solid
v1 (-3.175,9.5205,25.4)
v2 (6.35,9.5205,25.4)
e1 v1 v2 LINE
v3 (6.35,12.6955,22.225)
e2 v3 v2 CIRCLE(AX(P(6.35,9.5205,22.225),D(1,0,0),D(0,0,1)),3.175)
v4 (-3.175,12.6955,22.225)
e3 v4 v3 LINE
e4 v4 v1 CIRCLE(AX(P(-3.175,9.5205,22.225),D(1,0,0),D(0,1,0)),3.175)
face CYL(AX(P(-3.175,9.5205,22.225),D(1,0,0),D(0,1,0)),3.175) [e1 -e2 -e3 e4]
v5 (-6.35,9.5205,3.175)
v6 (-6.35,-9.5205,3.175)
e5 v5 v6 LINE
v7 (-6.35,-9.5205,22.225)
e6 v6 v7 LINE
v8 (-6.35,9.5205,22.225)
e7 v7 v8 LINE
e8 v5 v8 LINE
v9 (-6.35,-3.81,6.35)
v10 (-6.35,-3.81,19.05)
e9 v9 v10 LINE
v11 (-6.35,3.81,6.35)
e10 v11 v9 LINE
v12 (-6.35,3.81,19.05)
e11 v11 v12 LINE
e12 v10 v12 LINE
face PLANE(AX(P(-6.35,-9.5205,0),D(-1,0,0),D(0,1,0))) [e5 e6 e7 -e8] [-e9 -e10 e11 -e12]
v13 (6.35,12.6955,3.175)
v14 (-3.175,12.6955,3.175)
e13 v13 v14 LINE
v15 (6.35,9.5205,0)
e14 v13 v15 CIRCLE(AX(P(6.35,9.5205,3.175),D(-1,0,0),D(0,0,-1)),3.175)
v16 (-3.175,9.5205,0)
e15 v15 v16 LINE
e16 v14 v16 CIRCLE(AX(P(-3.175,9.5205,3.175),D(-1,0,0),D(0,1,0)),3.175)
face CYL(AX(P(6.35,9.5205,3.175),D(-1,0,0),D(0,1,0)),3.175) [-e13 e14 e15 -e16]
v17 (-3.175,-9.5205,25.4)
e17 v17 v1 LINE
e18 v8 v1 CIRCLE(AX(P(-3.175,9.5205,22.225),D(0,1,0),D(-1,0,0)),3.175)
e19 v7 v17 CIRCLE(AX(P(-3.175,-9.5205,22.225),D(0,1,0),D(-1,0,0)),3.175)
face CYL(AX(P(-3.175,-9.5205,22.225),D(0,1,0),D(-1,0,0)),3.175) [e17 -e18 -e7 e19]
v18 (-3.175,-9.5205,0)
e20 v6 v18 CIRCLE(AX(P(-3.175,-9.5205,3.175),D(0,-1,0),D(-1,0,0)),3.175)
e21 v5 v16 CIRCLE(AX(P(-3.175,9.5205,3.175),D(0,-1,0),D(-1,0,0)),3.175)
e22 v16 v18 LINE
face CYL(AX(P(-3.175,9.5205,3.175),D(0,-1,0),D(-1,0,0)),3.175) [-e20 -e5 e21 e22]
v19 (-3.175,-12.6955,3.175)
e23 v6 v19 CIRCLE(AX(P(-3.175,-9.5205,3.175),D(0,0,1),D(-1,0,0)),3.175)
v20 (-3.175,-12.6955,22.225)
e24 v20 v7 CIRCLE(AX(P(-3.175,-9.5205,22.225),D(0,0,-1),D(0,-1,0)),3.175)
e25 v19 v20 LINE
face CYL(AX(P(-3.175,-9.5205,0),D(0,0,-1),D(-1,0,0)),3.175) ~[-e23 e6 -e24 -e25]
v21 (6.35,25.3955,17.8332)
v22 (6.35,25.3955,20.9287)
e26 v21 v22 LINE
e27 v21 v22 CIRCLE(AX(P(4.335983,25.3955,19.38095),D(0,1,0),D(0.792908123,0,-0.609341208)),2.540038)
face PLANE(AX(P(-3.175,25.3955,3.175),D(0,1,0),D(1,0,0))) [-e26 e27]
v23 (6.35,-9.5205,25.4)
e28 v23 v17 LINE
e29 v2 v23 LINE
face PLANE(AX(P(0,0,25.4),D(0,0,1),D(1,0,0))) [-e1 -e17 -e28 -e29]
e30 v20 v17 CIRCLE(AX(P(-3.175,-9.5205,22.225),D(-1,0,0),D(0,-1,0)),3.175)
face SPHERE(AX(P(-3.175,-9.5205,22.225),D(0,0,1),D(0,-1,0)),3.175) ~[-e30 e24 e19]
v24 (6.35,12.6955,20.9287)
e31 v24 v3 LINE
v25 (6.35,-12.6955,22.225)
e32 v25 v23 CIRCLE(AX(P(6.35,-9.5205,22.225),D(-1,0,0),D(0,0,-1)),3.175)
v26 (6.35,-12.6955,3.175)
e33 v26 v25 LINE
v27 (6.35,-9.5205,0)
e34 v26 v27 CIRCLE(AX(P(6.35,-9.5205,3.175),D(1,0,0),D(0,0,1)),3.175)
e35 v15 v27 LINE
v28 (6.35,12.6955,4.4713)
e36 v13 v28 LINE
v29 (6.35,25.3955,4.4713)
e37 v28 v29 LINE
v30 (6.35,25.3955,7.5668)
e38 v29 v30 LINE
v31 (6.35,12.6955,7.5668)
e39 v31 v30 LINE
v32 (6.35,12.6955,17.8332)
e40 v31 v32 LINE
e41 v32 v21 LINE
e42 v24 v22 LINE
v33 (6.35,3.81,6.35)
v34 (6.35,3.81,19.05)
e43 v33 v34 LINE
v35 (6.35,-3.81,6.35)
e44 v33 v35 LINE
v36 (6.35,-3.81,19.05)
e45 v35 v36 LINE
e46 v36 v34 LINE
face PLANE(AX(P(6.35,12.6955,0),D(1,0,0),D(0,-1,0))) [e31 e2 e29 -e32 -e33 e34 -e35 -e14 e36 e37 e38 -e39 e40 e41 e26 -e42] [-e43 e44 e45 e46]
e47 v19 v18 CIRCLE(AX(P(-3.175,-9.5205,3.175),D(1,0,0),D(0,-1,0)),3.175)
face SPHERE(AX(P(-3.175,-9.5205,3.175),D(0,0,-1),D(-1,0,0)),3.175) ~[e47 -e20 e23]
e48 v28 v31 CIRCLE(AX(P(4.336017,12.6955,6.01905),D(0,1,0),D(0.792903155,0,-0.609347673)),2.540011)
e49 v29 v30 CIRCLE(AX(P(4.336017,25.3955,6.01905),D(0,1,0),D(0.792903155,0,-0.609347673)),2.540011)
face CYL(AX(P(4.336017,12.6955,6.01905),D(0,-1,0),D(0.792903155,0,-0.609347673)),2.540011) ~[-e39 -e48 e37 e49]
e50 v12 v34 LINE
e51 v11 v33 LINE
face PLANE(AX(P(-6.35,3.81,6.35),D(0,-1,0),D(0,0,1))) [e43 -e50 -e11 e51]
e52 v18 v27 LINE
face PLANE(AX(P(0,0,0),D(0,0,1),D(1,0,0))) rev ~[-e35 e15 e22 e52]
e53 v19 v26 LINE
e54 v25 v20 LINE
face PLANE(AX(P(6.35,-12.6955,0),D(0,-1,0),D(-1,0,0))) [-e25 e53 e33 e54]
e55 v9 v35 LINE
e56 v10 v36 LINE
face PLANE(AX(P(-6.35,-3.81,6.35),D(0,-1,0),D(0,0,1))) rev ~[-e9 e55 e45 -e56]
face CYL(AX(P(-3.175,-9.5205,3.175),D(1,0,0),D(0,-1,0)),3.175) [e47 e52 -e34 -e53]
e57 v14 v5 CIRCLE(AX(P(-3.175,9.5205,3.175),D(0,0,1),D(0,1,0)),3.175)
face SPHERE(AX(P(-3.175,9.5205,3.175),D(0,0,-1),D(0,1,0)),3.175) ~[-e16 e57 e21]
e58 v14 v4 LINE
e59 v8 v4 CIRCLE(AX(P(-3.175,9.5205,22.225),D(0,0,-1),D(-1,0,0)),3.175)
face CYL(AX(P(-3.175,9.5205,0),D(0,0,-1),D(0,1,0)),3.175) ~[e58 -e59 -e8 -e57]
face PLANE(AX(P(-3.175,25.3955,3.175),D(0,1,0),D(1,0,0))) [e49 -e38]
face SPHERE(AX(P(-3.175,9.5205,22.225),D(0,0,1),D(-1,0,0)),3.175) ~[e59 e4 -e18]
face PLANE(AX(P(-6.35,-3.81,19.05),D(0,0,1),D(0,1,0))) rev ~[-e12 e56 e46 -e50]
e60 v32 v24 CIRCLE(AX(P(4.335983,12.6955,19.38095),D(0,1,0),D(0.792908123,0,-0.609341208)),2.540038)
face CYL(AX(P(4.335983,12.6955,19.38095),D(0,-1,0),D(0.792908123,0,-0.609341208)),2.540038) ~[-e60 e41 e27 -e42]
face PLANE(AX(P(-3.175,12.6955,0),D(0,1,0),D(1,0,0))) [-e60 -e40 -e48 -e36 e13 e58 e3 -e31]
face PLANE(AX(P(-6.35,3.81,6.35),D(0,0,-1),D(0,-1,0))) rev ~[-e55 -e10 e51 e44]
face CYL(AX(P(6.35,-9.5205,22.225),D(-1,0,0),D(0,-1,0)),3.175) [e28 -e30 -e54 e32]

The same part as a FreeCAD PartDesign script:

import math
import FreeCAD as App
import Part
import Sketcher

V = App.Vector
Q = App.Units.Quantity


def edges_at(feature, points):
    """Names of the edges that pass closest to the given points."""
    edges = feature.Shape.Edges
    near = lambda p: min(range(len(edges)), key=lambda i: edges[i].distToShape(Part.Vertex(*p))[0])
    return sorted({f"Edge{near(p) + 1}" for p in points})

doc = App.newDocument("Part")
body = doc.addObject("PartDesign::Body", "Body")

sketch1 = doc.addObject("Sketcher::SketchObject", "Sketch")
body.addObject(sketch1)
sketch1.AttachmentSupport = (doc.XY_Plane, [""])
sketch1.MapMode = "FlatFace"
sketch1.addGeometry(Part.LineSegment(V(-3.2, -12.7, 0), V(6.3, -12.7, 0)), False)
sketch1.addGeometry(Part.LineSegment(V(6.3, -12.7, 0), V(6.3, 12.7, 0)), False)
sketch1.addGeometry(Part.LineSegment(V(6.3, 12.7, 0), V(-3.2, 12.7, 0)), False)
sketch1.addGeometry(Part.ArcOfCircle(Part.Circle(V(-3.2, 9.5, 0), V(0, 0, 1), 3.2), math.radians(90), math.radians(180)), False)
sketch1.addGeometry(Part.LineSegment(V(-6.3, 9.5, 0), V(-6.3, -9.5, 0)), False)
sketch1.addGeometry(Part.ArcOfCircle(Part.Circle(V(-3.2, -9.5, 0), V(0, 0, 1), 3.2), math.radians(180), math.radians(270)), False)
sketch1.addConstraint(Sketcher.Constraint("Coincident", 0, 2, 1, 1))
sketch1.addConstraint(Sketcher.Constraint("Coincident", 1, 2, 2, 1))
sketch1.addConstraint(Sketcher.Constraint("Tangent", 2, 2, 3, 1))
sketch1.addConstraint(Sketcher.Constraint("Tangent", 3, 2, 4, 1))
sketch1.addConstraint(Sketcher.Constraint("Tangent", 4, 2, 5, 1))
sketch1.addConstraint(Sketcher.Constraint("Tangent", 5, 2, 0, 1))
sketch1.addConstraint(Sketcher.Constraint("Horizontal", 0))
sketch1.addConstraint(Sketcher.Constraint("Vertical", 1))
sketch1.addConstraint(Sketcher.Constraint("Horizontal", 2))
sketch1.addConstraint(Sketcher.Constraint("Vertical", 4))
sketch1.addConstraint(Sketcher.Constraint("Equal", 3, 5))
sketch1.addConstraint(Sketcher.Constraint("Radius", 3, Q("0.125 in")))
sketch1.addConstraint(Sketcher.Constraint("DistanceX", 3, 2, 1, 2, Q("0.5 in")))
sketch1.addConstraint(Sketcher.Constraint("DistanceX", 3, 3, -1, 1, Q("0.125 in")))
sketch1.addConstraint(Sketcher.Constraint("DistanceY", 1, 1, 1, 2, Q("25.391 mm")))
sketch1.addConstraint(Sketcher.Constraint("DistanceY", -1, 1, 3, 3, Q("9.5205 mm")))
pad1 = doc.addObject("PartDesign::Pad", "Pad")
body.addObject(pad1)
pad1.Profile = sketch1
pad1.Length = Q("1 in")
doc.recompute()

fillet = doc.addObject("PartDesign::Fillet", "Fillet")
body.addObject(fillet)
fillet.Base = (pad1, edges_at(pad1, [
    (-6.35, 0, 25.4),
    (-5.42, -11.766, 25.4),
    (1.587, -12.695, 25.4),
    (1.587, 12.695, 25.4),
    (-5.42, 11.766, 25.4),
    (-5.42, 11.766, 0),
    (1.587, 12.695, 0),
    (-5.42, -11.766, 0),
    (1.587, -12.695, 0),
    (-6.35, 0, 0),
]))
fillet.Radius = Q("0.125 in")

sketch2 = doc.addObject("Sketcher::SketchObject", "Sketch001")
body.addObject(sketch2)
sketch2.AttachmentSupport = (doc.XZ_Plane, [""])
sketch2.MapMode = "FlatFace"
sketch2.AttachmentOffset = App.Placement(V(0, 0, -12.6955), App.Rotation())
sketch2.addGeometry(Part.LineSegment(V(6.3, 20.9, 0), V(6.3, 17.8, 0)), False)
sketch2.addGeometry(Part.ArcOfCircle(Part.Circle(V(4.3, 19.4, 0), V(0, 0, 1), 2.5), math.radians(38), math.radians(322)), False)
sketch2.addGeometry(Part.ArcOfCircle(Part.Circle(V(4.3, 6, 0), V(0, 0, 1), 2.5), math.radians(38), math.radians(322)), False)
sketch2.addGeometry(Part.LineSegment(V(6.3, 7.6, 0), V(6.3, 4.5, 0)), False)
sketch2.addConstraint(Sketcher.Constraint("Coincident", 0, 1, 1, 1))
sketch2.addConstraint(Sketcher.Constraint("Coincident", 1, 2, 0, 2))
sketch2.addConstraint(Sketcher.Constraint("Coincident", 2, 1, 3, 1))
sketch2.addConstraint(Sketcher.Constraint("Coincident", 3, 2, 2, 2))
sketch2.addConstraint(Sketcher.Constraint("Vertical", 0))
sketch2.addConstraint(Sketcher.Constraint("Vertical", 3))
sketch2.addConstraint(Sketcher.Constraint("Equal", 1, 2))
sketch2.addConstraint(Sketcher.Constraint("Vertical", 1, 3, 2, 3))
sketch2.addConstraint(Sketcher.Constraint("Vertical", 1, 2, 2, 1))
sketch2.addConstraint(Sketcher.Constraint("Radius", 1, Q("0.1 in")))
sketch2.addConstraint(Sketcher.Constraint("DistanceX", -1, 1, 0, 1, Q("0.25 in")))
sketch2.addConstraint(Sketcher.Constraint("DistanceY", 2, 3, 0, 1, Q("0.587 in")))
sketch2.addConstraint(Sketcher.Constraint("DistanceY", 0, 2, 0, 1, Q("3.0955 mm")))
sketch2.addConstraint(Sketcher.Constraint("DistanceY", -1, 1, 1, 2, Q("0.7021 in")))
pad2 = doc.addObject("PartDesign::Pad", "Pad001")
body.addObject(pad2)
pad2.Profile = sketch2
pad2.Length = Q("0.5 in")
pad2.Reversed = True

sketch3 = doc.addObject("Sketcher::SketchObject", "Sketch002")
body.addObject(sketch3)
sketch3.AttachmentSupport = (doc.YZ_Plane, [""])
sketch3.MapMode = "FlatFace"
sketch3.AttachmentOffset = App.Placement(V(0, 0, -0.25 * 25.4), App.Rotation())
sketch3.addGeometry(Part.LineSegment(V(4, 19, 0), V(4, 6, 0)), False)
sketch3.addGeometry(Part.LineSegment(V(4, 6, 0), V(-4, 6, 0)), False)
sketch3.addGeometry(Part.LineSegment(V(-4, 6, 0), V(-4, 19, 0)), False)
sketch3.addGeometry(Part.LineSegment(V(-4, 19, 0), V(4, 19, 0)), False)
sketch3.addConstraint(Sketcher.Constraint("Coincident", 0, 2, 1, 1))
sketch3.addConstraint(Sketcher.Constraint("Coincident", 1, 2, 2, 1))
sketch3.addConstraint(Sketcher.Constraint("Coincident", 2, 2, 3, 1))
sketch3.addConstraint(Sketcher.Constraint("Coincident", 3, 2, 0, 1))
sketch3.addConstraint(Sketcher.Constraint("Vertical", 0))
sketch3.addConstraint(Sketcher.Constraint("Horizontal", 1))
sketch3.addConstraint(Sketcher.Constraint("Vertical", 2))
sketch3.addConstraint(Sketcher.Constraint("Horizontal", 3))
sketch3.addConstraint(Sketcher.Constraint("DistanceX", 1, 2, 1, 1, Q("0.3 in")))
sketch3.addConstraint(Sketcher.Constraint("DistanceY", 0, 2, 0, 1, Q("0.5 in")))
sketch3.addConstraint(Sketcher.Constraint("DistanceX", -1, 1, 0, 2, Q("0.15 in")))
sketch3.addConstraint(Sketcher.Constraint("DistanceY", -1, 1, 0, 2, Q("0.25 in")))
pocket1 = doc.addObject("PartDesign::Pocket", "Pocket")
body.addObject(pocket1)
pocket1.Profile = sketch3
pocket1.Length = Q("0.5 in")
pocket1.Reversed = True

doc.recompute()
